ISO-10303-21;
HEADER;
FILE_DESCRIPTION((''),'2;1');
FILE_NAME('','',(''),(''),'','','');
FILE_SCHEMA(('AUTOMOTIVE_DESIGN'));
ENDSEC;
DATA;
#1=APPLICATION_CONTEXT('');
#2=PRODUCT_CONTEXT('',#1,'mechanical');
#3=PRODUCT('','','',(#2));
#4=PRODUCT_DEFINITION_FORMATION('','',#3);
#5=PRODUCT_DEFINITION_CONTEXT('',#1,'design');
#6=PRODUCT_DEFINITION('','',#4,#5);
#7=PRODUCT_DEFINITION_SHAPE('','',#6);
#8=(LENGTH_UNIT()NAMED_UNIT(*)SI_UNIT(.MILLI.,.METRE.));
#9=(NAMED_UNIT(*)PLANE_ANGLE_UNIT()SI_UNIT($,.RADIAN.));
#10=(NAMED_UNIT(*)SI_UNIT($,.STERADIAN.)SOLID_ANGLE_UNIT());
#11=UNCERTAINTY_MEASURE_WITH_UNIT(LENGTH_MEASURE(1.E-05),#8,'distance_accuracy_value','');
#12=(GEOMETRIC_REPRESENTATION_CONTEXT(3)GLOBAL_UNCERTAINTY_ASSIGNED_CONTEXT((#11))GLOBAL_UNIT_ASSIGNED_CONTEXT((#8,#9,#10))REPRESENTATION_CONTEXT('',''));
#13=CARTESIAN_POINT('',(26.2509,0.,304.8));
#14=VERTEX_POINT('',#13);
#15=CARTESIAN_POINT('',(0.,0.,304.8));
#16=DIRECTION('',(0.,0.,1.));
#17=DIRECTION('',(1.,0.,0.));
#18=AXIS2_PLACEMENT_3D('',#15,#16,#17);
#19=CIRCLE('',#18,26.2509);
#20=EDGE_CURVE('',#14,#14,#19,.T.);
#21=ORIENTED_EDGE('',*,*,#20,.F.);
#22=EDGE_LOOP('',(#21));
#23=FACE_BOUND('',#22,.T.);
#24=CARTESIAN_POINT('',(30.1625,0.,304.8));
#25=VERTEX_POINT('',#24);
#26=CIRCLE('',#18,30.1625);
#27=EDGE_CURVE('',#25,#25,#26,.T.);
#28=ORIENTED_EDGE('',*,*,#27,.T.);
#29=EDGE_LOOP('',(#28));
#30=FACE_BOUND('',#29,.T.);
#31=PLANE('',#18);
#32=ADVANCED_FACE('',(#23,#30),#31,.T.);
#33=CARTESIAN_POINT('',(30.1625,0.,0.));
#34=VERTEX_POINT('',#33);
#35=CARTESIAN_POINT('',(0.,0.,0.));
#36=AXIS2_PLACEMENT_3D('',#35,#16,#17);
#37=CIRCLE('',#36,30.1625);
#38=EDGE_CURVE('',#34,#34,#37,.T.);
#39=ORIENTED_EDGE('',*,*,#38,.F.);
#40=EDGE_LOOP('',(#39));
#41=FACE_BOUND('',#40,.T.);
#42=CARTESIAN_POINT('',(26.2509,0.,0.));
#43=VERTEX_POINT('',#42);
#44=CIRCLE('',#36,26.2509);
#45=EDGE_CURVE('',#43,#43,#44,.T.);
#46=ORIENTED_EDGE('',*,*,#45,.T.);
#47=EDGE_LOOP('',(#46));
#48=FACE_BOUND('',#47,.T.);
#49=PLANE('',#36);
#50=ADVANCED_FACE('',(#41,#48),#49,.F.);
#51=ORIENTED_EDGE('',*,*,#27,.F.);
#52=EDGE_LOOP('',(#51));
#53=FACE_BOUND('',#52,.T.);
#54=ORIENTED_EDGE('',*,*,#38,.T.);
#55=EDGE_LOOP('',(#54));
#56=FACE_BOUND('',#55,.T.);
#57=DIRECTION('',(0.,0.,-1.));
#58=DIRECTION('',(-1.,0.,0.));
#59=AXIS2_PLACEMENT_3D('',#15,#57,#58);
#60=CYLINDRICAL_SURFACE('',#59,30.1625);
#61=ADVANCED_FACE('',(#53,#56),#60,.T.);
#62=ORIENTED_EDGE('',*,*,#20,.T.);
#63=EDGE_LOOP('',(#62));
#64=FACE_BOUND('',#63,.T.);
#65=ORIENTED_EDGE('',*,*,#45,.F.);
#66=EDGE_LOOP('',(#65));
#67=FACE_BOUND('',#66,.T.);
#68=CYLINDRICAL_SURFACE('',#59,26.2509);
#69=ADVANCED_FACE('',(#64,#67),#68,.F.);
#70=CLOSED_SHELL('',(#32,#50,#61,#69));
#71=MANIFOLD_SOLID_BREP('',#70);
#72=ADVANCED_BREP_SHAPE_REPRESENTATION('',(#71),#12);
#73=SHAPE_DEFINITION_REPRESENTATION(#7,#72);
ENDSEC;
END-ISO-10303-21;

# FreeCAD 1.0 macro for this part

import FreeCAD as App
import Part
import Sketcher
Q = App.Units.Quantity

doc = App.newDocument("Part")
body = doc.addObject("PartDesign::Body", "Body")

sketch1 = body.newObject("Sketcher::SketchObject", "Sketch")
sketch1.AttachmentSupport = (doc.getObject("XY_Plane"), [""])
sketch1.MapMode = "FlatFace"
sketch1.addGeometry([
    Part.Circle(App.Vector(0, 0, 0), App.Vector(0, 0, 1), 30.1625),
    Part.Circle(App.Vector(0, 0, 0), App.Vector(0, 0, 1), 26.2509),
], False)
sketch1.addConstraint([
    Sketcher.Constraint("Coincident", 0, 3, -1, 1),
    Sketcher.Constraint("Coincident", 1, 3, -1, 1),
    Sketcher.Constraint("Diameter", 0, Q("2.375 in")),
    Sketcher.Constraint("Diameter", 1, Q("2.067 in")),
])
pad1 = body.newObject("PartDesign::Pad", "Pad")
pad1.Profile = sketch1
pad1.Length = Q("12 in")

doc.recompute()
